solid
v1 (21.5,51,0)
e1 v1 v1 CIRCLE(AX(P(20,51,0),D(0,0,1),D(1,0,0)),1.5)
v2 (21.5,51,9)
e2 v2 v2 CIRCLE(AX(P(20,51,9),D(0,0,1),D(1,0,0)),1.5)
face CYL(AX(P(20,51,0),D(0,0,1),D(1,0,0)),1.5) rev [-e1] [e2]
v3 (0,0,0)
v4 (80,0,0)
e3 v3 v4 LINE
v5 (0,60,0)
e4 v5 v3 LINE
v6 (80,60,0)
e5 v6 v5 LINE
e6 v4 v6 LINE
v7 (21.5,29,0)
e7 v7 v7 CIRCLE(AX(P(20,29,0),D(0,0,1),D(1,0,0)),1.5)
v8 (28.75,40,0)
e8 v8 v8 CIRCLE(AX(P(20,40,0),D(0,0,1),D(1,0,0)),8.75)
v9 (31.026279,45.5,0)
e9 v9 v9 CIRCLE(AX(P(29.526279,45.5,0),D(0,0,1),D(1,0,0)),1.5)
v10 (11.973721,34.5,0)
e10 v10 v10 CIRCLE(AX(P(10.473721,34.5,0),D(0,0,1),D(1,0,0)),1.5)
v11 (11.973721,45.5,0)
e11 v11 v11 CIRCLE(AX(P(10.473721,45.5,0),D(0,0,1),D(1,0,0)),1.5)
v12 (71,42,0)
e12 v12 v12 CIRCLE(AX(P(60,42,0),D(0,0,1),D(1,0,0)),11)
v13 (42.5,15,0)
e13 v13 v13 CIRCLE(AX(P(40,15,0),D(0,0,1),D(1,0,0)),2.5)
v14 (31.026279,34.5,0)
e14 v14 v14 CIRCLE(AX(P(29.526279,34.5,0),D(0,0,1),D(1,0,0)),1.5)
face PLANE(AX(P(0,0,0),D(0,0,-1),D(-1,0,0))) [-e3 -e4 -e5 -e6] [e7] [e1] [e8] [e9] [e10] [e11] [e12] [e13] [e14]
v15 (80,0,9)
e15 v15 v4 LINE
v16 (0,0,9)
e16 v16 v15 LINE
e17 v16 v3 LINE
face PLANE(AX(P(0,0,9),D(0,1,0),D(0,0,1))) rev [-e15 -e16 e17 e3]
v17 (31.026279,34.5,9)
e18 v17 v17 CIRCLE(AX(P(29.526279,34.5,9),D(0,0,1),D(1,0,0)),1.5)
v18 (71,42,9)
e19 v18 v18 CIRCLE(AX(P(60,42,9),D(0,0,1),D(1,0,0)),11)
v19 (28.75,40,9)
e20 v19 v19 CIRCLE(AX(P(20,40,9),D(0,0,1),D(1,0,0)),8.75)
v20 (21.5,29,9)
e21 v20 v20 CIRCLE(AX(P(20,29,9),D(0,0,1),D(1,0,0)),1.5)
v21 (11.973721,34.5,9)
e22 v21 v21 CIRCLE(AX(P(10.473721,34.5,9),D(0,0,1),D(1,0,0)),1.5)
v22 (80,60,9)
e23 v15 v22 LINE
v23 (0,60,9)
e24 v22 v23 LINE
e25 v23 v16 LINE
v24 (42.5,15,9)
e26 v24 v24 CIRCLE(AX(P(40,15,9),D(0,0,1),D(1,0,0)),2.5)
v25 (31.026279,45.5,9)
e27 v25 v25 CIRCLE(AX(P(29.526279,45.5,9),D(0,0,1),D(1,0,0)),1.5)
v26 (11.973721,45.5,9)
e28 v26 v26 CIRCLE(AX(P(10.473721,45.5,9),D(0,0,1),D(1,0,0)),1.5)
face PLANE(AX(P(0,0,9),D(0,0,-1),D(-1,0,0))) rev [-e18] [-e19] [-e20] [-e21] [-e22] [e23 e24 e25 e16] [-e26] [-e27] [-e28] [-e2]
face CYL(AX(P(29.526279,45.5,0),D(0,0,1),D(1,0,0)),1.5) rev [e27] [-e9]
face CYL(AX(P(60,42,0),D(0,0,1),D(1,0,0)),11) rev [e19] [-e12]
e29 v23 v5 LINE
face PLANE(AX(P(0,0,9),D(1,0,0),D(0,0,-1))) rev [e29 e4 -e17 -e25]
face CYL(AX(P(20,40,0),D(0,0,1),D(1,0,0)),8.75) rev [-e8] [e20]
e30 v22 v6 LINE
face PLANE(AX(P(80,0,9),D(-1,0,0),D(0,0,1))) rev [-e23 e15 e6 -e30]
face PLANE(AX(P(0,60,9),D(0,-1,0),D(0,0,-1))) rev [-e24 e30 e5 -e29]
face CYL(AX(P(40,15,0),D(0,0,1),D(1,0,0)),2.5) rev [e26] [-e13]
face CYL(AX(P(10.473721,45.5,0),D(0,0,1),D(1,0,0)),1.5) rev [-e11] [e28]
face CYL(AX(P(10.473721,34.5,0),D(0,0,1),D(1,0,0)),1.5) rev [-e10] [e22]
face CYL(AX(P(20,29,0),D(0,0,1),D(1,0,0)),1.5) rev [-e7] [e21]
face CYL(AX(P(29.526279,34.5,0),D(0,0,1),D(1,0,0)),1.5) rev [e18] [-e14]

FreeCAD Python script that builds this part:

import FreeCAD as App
import Part
import Sketcher

doc = App.newDocument("Part")
body = doc.addObject("PartDesign::Body", "Body")

# Sketch on XY plane
sketch1 = doc.addObject("Sketcher::SketchObject", "Sketch")
body.addObject(sketch1)
sketch1.AttachmentSupport = (doc.XY_Plane, [""])
sketch1.MapMode = "FlatFace"
sketch1.addGeometry([
    Part.LineSegment(App.Vector(0, 60, 0), App.Vector(0, 0, 0)),
    Part.LineSegment(App.Vector(0, 0, 0), App.Vector(80, 0, 0)),
    Part.LineSegment(App.Vector(80, 0, 0), App.Vector(80, 60, 0)),
    Part.LineSegment(App.Vector(80, 60, 0), App.Vector(0, 60, 0)),
], False)
sketch1.addConstraint([
    Sketcher.Constraint("Coincident", 0, 2, 1, 1),
    Sketcher.Constraint("Coincident", 1, 2, 2, 1),
    Sketcher.Constraint("Coincident", 2, 2, 3, 1),
    Sketcher.Constraint("Coincident", 3, 2, 0, 1),
    Sketcher.Constraint("Vertical", 0),
    Sketcher.Constraint("Horizontal", 1),
    Sketcher.Constraint("Vertical", 2),
    Sketcher.Constraint("Horizontal", 3),
    Sketcher.Constraint("Coincident", 0, 2, -1, 1),
    Sketcher.Constraint("DistanceX", 1, 1, 1, 2, 80.0),
    Sketcher.Constraint("DistanceY", 0, 2, 0, 1, 60.0),
])
pad1 = doc.addObject("PartDesign::Pad", "Pad")
body.addObject(pad1)
pad1.Profile = sketch1
pad1.Length = 9

# Sketch on XY plane
sketch2 = doc.addObject("Sketcher::SketchObject", "Sketch001")
body.addObject(sketch2)
sketch2.AttachmentSupport = (doc.XY_Plane, [""])
sketch2.MapMode = "FlatFace"
sketch2.AttachmentOffset = App.Placement(App.Vector(0, 0, 9), App.Rotation())
sketch2.addGeometry([
    Part.Circle(App.Vector(60, 42, 0), App.Vector(0, 0, 1), 11),  # 0
    Part.Circle(App.Vector(20, 40, 0), App.Vector(0, 0, 1), 8.8),  # 1
    Part.Circle(App.Vector(20, 51, 0), App.Vector(0, 0, 1), 1.5),  # 2
    Part.Circle(App.Vector(29.5, 45.5, 0), App.Vector(0, 0, 1), 1.5),  # 3
    Part.Circle(App.Vector(29.5, 34.5, 0), App.Vector(0, 0, 1), 1.5),  # 4
    Part.Circle(App.Vector(20, 29, 0), App.Vector(0, 0, 1), 1.5),  # 5
    Part.Circle(App.Vector(10.5, 34.5, 0), App.Vector(0, 0, 1), 1.5),  # 6
    Part.Circle(App.Vector(10.5, 45.5, 0), App.Vector(0, 0, 1), 1.5),  # 7
], False)
sketch2.addConstraint([
    Sketcher.Constraint("Equal", 2, 3),
    Sketcher.Constraint("Equal", 3, 4),
    Sketcher.Constraint("Equal", 4, 5),
    Sketcher.Constraint("Equal", 5, 6),
    Sketcher.Constraint("Equal", 6, 7),
    Sketcher.Constraint("Horizontal", 4, 3, 6, 3),
    Sketcher.Constraint("Horizontal", 3, 3, 7, 3),
    Sketcher.Constraint("Vertical", 1, 3, 2, 3),
    Sketcher.Constraint("Vertical", 3, 3, 4, 3),
    Sketcher.Constraint("Vertical", 2, 3, 5, 3),
    Sketcher.Constraint("Vertical", 6, 3, 7, 3),
    Sketcher.Constraint("Diameter", 0, 22.0),
    Sketcher.Constraint("Diameter", 2, 3.0),
    Sketcher.Constraint("Diameter", 1, 17.5),
    Sketcher.Constraint("DistanceX", -1, 1, 0, 3, 60.0),
    Sketcher.Constraint("DistanceY", -1, 1, 0, 3, 42.0),
    Sketcher.Constraint("DistanceX", -1, 1, 1, 3, 20.0),
    Sketcher.Constraint("DistanceY", -1, 1, 1, 3, 40.0),
    Sketcher.Constraint("DistanceY", -1, 1, 2, 3, 51.0),
    Sketcher.Constraint("DistanceY", -1, 1, 5, 3, 29.0),
    Sketcher.Constraint("DistanceY", 4, 3, 3, 3, 11.0),
    Sketcher.Constraint("DistanceY", -1, 1, 3, 3, 45.5),
    Sketcher.Constraint("DistanceX", -1, 1, 3, 3, 29.526279),
    Sketcher.Constraint("DistanceX", -1, 1, 6, 3, 10.473721),
])
pocket1 = doc.addObject("PartDesign::Pocket", "Pocket")
body.addObject(pocket1)
pocket1.Profile = sketch2
pocket1.Type = "ThroughAll"

# Sketch on XY plane
sketch3 = doc.addObject("Sketcher::SketchObject", "Sketch002")
body.addObject(sketch3)
sketch3.AttachmentSupport = (doc.XY_Plane, [""])
sketch3.MapMode = "FlatFace"
sketch3.AttachmentOffset = App.Placement(App.Vector(0, 0, 9), App.Rotation())
sketch3.addGeometry(Part.Circle(App.Vector(40, 15, 0), App.Vector(0, 0, 1), 2.5), False)
sketch3.addConstraint([
    Sketcher.Constraint("Diameter", 0, 5.0),
    Sketcher.Constraint("DistanceX", -1, 1, 0, 3, 40.0),
    Sketcher.Constraint("DistanceY", -1, 1, 0, 3, 15.0),
])
pocket2 = doc.addObject("PartDesign::Pocket", "Pocket001")
body.addObject(pocket2)
pocket2.Profile = sketch3
pocket2.Type = "ThroughAll"

doc.recompute()
